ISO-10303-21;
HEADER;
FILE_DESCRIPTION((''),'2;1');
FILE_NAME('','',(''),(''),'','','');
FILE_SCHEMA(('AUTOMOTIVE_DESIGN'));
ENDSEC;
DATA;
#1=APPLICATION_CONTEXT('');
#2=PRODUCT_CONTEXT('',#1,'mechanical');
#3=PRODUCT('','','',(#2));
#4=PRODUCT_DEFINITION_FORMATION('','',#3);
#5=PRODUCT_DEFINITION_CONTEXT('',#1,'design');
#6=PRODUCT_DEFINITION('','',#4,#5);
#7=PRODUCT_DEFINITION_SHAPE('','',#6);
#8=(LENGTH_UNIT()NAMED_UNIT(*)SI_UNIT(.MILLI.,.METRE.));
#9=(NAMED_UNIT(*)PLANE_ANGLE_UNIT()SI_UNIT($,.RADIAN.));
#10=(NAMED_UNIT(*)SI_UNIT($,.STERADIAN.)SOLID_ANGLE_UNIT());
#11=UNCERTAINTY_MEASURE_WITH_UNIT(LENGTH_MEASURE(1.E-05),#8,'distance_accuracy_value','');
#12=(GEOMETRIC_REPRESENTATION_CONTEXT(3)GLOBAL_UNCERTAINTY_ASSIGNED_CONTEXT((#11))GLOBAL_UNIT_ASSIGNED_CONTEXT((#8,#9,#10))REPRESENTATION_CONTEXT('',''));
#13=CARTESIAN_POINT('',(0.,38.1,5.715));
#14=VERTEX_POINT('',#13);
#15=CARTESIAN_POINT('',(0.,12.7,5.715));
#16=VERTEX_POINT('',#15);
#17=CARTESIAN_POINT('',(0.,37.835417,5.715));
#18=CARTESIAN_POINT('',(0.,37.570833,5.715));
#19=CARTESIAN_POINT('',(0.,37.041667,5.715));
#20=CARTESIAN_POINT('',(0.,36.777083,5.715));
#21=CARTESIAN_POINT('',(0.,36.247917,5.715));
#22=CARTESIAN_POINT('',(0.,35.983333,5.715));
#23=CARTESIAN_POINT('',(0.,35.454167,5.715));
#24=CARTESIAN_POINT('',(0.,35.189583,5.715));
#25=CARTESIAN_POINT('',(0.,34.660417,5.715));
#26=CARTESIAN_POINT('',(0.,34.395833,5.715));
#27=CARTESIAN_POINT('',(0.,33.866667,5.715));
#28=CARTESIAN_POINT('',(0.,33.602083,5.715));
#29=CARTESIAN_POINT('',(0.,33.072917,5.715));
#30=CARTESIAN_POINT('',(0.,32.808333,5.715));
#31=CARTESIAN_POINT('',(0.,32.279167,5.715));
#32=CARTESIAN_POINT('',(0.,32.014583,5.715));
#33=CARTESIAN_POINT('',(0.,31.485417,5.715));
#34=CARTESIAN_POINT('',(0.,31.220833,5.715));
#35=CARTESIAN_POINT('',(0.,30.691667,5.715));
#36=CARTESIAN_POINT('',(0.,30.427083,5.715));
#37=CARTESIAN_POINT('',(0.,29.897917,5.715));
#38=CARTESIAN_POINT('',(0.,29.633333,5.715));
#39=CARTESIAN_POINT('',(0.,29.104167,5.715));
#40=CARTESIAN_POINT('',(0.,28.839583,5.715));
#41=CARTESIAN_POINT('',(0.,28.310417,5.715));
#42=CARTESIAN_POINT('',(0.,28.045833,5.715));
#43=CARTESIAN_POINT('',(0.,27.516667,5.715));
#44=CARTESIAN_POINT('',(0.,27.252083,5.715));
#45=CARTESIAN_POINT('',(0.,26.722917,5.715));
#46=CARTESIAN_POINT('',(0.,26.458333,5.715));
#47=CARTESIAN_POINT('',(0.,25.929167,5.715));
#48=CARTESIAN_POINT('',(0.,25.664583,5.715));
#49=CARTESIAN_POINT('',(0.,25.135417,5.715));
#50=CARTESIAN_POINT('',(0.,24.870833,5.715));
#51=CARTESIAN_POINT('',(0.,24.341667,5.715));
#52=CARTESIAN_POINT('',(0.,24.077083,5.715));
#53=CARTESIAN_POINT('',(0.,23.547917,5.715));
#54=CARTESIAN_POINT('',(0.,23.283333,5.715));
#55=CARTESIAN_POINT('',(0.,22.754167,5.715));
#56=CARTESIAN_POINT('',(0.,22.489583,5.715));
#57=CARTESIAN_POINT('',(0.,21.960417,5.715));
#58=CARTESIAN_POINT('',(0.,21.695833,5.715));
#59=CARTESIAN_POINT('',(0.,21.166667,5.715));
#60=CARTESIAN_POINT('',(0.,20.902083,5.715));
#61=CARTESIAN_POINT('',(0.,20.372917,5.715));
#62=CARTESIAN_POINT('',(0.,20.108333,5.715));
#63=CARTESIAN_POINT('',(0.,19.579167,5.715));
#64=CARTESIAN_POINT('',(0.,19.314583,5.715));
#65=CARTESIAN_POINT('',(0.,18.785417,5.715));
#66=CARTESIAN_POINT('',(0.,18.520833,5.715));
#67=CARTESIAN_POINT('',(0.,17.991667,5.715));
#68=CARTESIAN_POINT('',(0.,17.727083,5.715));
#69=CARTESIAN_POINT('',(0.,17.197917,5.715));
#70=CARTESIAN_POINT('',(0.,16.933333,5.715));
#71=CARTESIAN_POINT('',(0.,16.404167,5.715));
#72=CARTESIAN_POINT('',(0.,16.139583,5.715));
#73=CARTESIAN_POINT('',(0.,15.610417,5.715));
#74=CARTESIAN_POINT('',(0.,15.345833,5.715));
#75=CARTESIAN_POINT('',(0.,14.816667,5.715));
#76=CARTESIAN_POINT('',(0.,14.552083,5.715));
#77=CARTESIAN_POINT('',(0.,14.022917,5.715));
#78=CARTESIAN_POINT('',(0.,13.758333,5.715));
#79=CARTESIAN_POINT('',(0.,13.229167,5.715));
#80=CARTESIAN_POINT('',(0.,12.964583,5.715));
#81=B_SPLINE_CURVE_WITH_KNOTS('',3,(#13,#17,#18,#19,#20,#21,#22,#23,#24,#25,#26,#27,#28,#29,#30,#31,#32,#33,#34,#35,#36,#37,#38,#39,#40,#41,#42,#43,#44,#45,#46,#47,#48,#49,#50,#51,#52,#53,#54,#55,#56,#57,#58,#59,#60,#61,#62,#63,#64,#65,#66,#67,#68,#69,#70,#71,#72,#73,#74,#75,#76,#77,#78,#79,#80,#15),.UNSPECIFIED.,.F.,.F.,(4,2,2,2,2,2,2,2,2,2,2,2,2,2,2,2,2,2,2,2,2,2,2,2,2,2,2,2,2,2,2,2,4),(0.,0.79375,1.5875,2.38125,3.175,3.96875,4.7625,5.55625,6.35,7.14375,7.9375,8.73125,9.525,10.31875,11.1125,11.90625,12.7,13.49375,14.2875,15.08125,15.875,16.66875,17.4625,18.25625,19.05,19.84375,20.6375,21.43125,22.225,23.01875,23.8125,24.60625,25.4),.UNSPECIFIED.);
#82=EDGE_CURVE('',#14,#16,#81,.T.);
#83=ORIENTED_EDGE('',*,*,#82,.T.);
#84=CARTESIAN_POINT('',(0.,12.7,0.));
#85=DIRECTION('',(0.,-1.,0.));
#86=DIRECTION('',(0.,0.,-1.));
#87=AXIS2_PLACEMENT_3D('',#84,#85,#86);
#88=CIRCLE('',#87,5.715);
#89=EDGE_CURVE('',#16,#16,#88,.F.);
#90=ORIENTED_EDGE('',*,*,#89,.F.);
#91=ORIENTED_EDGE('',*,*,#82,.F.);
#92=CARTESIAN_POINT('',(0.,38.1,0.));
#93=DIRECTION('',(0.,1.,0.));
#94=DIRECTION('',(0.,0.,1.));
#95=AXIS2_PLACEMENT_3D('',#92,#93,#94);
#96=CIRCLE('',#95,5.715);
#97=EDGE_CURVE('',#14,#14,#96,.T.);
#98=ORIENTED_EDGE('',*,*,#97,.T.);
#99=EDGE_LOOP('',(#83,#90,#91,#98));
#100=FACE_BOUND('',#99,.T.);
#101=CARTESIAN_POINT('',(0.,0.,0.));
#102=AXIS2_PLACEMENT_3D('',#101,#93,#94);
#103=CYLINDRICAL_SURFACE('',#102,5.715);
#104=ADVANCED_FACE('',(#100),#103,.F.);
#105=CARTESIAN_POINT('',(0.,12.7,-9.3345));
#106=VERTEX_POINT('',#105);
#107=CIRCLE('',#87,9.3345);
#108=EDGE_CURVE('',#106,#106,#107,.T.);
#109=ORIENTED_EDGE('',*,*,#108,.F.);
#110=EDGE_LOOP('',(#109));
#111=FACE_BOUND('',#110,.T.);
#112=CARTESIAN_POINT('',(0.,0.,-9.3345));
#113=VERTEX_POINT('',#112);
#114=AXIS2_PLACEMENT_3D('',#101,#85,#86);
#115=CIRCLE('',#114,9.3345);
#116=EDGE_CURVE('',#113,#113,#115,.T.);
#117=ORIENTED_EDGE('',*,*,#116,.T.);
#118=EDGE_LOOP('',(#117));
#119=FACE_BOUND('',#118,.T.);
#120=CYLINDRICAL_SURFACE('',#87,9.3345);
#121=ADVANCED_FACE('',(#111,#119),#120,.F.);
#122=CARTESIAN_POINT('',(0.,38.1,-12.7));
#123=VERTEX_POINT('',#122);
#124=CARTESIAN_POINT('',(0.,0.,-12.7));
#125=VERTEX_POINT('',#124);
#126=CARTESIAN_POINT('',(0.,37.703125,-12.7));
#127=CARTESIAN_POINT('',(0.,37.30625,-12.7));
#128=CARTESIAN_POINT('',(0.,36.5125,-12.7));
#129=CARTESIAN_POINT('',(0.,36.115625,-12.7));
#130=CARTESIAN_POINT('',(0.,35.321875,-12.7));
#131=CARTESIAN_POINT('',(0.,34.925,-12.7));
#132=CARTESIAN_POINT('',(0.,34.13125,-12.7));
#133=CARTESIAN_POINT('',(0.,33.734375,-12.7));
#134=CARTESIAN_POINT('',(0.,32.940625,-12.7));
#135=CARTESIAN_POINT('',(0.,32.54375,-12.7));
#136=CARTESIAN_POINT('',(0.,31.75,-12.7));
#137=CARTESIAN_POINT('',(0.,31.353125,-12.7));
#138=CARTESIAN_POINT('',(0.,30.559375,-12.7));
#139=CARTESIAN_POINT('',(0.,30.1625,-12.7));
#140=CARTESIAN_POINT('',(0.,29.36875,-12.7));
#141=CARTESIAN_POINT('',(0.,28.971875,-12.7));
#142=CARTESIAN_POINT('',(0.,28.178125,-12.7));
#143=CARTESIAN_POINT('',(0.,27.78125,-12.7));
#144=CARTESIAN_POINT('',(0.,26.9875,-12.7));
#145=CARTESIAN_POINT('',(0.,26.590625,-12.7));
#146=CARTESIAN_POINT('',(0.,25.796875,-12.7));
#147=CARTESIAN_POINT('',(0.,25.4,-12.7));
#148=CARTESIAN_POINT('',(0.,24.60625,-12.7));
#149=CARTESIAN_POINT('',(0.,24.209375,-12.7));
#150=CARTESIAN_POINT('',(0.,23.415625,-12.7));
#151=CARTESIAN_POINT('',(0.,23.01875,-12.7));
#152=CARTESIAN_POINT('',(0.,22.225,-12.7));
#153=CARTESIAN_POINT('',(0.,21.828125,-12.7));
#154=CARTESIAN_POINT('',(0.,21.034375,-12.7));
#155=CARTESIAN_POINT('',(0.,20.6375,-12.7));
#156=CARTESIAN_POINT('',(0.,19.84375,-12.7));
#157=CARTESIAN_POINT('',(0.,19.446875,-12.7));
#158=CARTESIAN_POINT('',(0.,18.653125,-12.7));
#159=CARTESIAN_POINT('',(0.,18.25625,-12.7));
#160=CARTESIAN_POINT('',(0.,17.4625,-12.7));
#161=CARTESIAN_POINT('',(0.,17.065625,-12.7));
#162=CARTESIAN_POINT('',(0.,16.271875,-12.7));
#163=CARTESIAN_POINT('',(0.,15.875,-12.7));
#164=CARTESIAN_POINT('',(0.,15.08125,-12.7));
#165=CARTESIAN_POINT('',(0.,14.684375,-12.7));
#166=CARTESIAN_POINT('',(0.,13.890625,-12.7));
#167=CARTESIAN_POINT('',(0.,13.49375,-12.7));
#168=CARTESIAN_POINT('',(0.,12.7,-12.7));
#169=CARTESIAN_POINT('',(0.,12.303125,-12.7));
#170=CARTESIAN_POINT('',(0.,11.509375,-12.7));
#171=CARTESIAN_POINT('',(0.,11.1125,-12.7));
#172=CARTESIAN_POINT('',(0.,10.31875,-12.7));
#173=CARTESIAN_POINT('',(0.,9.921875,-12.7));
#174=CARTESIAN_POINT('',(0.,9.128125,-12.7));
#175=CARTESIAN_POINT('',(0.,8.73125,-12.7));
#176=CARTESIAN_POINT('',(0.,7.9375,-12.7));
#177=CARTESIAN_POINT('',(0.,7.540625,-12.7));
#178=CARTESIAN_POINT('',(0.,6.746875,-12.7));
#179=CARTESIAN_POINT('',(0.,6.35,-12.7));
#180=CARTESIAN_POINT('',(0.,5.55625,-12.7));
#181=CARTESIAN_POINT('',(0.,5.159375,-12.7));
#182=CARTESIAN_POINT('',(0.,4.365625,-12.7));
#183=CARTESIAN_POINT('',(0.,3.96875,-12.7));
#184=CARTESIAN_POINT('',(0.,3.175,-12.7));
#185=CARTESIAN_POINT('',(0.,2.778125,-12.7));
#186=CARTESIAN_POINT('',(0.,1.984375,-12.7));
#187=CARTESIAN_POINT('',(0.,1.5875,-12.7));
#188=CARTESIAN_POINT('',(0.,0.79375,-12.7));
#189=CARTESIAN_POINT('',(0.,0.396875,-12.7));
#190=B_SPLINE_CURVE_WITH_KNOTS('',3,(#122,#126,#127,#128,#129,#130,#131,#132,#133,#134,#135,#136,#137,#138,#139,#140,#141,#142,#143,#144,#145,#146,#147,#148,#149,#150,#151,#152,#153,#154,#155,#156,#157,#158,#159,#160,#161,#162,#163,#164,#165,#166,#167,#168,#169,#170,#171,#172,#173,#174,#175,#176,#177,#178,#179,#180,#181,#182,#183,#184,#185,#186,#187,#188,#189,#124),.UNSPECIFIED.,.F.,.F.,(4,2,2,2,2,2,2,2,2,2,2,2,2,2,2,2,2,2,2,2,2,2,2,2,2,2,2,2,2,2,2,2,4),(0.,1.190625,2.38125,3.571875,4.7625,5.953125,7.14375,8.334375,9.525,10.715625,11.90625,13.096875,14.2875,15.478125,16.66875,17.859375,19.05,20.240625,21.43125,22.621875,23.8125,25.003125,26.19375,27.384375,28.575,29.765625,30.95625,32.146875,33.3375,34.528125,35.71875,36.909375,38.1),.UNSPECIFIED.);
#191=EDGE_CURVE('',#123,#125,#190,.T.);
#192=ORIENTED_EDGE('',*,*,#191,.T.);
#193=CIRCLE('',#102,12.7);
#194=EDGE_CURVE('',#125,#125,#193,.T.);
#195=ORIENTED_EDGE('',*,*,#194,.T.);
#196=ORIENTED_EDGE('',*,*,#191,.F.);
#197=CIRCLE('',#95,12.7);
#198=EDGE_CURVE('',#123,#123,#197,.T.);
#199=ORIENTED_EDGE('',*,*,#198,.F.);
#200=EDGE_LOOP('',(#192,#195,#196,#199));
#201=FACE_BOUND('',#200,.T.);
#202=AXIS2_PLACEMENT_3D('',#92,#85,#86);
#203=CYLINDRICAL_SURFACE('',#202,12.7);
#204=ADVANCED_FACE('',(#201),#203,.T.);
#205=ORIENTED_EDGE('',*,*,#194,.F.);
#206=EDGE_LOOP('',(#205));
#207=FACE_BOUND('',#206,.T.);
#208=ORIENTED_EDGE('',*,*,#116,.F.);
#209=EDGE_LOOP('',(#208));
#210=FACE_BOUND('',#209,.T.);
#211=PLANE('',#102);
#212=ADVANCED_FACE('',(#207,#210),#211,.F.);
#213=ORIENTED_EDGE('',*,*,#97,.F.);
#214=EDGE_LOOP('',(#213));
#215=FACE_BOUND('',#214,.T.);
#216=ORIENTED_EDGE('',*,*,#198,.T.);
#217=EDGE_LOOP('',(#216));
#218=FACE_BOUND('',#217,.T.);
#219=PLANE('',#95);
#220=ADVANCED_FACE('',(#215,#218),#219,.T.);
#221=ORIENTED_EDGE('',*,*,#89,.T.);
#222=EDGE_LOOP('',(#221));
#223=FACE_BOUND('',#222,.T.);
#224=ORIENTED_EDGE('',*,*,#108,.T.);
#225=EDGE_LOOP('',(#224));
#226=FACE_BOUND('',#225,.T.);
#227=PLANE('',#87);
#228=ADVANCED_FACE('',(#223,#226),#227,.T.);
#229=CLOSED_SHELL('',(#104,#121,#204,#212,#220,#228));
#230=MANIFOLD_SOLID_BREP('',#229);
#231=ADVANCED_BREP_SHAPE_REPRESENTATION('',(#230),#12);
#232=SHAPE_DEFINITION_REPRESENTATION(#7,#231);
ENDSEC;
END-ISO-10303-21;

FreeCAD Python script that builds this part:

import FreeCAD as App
import Part
import Sketcher
from FreeCAD import Vector
Q = App.Units.Quantity

doc = App.newDocument("Part")
body = doc.addObject("PartDesign::Body", "Body")

sketch1 = body.newObject("Sketcher::SketchObject", "Sketch")
sketch1.AttachmentSupport = (doc.getObject("XZ_Plane"), [""])
sketch1.MapMode = "FlatFace"
sketch1.addGeometry(Part.Circle(Vector(0, 0, 0), Vector(0, 0, 1), 13), False)
sketch1.addConstraint(Sketcher.Constraint("Coincident", 0, 3, -1, 1))
sketch1.addConstraint(Sketcher.Constraint("Diameter", 0, Q("1 in")))
pad1 = body.newObject("PartDesign::Pad", "Pad")
pad1.Profile = sketch1
pad1.Length = Q("1.5 in")
pad1.Reversed = True

sketch2 = body.newObject("Sketcher::SketchObject", "Sketch001")
sketch2.AttachmentSupport = (doc.getObject("XZ_Plane"), [""])
sketch2.MapMode = "FlatFace"
sketch2.AttachmentOffset = App.Placement(Vector(0, 0, -1.5 * 25.4), App.Rotation())
sketch2.addGeometry(Part.Circle(Vector(0, 0, 0), Vector(0, 0, 1), 6), False)
sketch2.addConstraint(Sketcher.Constraint("Coincident", 0, 3, -1, 1))
sketch2.addConstraint(Sketcher.Constraint("Diameter", 0, Q("0.45 in")))
pocket1 = body.newObject("PartDesign::Pocket", "Pocket")
pocket1.Profile = sketch2
pocket1.Type = "ThroughAll"
pocket1.Reversed = True

sketch3 = body.newObject("Sketcher::SketchObject", "Sketch002")
sketch3.AttachmentSupport = (doc.getObject("XZ_Plane"), [""])
sketch3.MapMode = "FlatFace"
sketch3.addGeometry(Part.Circle(Vector(0, 0, 0), Vector(0, 0, 1), 9), False)
sketch3.addConstraint(Sketcher.Constraint("Coincident", 0, 3, -1, 1))
sketch3.addConstraint(Sketcher.Constraint("Diameter", 0, Q("0.735 in")))
pocket2 = body.newObject("PartDesign::Pocket", "Pocket001")
pocket2.Profile = sketch3
pocket2.Length = Q("0.5 in")

doc.recompute()
